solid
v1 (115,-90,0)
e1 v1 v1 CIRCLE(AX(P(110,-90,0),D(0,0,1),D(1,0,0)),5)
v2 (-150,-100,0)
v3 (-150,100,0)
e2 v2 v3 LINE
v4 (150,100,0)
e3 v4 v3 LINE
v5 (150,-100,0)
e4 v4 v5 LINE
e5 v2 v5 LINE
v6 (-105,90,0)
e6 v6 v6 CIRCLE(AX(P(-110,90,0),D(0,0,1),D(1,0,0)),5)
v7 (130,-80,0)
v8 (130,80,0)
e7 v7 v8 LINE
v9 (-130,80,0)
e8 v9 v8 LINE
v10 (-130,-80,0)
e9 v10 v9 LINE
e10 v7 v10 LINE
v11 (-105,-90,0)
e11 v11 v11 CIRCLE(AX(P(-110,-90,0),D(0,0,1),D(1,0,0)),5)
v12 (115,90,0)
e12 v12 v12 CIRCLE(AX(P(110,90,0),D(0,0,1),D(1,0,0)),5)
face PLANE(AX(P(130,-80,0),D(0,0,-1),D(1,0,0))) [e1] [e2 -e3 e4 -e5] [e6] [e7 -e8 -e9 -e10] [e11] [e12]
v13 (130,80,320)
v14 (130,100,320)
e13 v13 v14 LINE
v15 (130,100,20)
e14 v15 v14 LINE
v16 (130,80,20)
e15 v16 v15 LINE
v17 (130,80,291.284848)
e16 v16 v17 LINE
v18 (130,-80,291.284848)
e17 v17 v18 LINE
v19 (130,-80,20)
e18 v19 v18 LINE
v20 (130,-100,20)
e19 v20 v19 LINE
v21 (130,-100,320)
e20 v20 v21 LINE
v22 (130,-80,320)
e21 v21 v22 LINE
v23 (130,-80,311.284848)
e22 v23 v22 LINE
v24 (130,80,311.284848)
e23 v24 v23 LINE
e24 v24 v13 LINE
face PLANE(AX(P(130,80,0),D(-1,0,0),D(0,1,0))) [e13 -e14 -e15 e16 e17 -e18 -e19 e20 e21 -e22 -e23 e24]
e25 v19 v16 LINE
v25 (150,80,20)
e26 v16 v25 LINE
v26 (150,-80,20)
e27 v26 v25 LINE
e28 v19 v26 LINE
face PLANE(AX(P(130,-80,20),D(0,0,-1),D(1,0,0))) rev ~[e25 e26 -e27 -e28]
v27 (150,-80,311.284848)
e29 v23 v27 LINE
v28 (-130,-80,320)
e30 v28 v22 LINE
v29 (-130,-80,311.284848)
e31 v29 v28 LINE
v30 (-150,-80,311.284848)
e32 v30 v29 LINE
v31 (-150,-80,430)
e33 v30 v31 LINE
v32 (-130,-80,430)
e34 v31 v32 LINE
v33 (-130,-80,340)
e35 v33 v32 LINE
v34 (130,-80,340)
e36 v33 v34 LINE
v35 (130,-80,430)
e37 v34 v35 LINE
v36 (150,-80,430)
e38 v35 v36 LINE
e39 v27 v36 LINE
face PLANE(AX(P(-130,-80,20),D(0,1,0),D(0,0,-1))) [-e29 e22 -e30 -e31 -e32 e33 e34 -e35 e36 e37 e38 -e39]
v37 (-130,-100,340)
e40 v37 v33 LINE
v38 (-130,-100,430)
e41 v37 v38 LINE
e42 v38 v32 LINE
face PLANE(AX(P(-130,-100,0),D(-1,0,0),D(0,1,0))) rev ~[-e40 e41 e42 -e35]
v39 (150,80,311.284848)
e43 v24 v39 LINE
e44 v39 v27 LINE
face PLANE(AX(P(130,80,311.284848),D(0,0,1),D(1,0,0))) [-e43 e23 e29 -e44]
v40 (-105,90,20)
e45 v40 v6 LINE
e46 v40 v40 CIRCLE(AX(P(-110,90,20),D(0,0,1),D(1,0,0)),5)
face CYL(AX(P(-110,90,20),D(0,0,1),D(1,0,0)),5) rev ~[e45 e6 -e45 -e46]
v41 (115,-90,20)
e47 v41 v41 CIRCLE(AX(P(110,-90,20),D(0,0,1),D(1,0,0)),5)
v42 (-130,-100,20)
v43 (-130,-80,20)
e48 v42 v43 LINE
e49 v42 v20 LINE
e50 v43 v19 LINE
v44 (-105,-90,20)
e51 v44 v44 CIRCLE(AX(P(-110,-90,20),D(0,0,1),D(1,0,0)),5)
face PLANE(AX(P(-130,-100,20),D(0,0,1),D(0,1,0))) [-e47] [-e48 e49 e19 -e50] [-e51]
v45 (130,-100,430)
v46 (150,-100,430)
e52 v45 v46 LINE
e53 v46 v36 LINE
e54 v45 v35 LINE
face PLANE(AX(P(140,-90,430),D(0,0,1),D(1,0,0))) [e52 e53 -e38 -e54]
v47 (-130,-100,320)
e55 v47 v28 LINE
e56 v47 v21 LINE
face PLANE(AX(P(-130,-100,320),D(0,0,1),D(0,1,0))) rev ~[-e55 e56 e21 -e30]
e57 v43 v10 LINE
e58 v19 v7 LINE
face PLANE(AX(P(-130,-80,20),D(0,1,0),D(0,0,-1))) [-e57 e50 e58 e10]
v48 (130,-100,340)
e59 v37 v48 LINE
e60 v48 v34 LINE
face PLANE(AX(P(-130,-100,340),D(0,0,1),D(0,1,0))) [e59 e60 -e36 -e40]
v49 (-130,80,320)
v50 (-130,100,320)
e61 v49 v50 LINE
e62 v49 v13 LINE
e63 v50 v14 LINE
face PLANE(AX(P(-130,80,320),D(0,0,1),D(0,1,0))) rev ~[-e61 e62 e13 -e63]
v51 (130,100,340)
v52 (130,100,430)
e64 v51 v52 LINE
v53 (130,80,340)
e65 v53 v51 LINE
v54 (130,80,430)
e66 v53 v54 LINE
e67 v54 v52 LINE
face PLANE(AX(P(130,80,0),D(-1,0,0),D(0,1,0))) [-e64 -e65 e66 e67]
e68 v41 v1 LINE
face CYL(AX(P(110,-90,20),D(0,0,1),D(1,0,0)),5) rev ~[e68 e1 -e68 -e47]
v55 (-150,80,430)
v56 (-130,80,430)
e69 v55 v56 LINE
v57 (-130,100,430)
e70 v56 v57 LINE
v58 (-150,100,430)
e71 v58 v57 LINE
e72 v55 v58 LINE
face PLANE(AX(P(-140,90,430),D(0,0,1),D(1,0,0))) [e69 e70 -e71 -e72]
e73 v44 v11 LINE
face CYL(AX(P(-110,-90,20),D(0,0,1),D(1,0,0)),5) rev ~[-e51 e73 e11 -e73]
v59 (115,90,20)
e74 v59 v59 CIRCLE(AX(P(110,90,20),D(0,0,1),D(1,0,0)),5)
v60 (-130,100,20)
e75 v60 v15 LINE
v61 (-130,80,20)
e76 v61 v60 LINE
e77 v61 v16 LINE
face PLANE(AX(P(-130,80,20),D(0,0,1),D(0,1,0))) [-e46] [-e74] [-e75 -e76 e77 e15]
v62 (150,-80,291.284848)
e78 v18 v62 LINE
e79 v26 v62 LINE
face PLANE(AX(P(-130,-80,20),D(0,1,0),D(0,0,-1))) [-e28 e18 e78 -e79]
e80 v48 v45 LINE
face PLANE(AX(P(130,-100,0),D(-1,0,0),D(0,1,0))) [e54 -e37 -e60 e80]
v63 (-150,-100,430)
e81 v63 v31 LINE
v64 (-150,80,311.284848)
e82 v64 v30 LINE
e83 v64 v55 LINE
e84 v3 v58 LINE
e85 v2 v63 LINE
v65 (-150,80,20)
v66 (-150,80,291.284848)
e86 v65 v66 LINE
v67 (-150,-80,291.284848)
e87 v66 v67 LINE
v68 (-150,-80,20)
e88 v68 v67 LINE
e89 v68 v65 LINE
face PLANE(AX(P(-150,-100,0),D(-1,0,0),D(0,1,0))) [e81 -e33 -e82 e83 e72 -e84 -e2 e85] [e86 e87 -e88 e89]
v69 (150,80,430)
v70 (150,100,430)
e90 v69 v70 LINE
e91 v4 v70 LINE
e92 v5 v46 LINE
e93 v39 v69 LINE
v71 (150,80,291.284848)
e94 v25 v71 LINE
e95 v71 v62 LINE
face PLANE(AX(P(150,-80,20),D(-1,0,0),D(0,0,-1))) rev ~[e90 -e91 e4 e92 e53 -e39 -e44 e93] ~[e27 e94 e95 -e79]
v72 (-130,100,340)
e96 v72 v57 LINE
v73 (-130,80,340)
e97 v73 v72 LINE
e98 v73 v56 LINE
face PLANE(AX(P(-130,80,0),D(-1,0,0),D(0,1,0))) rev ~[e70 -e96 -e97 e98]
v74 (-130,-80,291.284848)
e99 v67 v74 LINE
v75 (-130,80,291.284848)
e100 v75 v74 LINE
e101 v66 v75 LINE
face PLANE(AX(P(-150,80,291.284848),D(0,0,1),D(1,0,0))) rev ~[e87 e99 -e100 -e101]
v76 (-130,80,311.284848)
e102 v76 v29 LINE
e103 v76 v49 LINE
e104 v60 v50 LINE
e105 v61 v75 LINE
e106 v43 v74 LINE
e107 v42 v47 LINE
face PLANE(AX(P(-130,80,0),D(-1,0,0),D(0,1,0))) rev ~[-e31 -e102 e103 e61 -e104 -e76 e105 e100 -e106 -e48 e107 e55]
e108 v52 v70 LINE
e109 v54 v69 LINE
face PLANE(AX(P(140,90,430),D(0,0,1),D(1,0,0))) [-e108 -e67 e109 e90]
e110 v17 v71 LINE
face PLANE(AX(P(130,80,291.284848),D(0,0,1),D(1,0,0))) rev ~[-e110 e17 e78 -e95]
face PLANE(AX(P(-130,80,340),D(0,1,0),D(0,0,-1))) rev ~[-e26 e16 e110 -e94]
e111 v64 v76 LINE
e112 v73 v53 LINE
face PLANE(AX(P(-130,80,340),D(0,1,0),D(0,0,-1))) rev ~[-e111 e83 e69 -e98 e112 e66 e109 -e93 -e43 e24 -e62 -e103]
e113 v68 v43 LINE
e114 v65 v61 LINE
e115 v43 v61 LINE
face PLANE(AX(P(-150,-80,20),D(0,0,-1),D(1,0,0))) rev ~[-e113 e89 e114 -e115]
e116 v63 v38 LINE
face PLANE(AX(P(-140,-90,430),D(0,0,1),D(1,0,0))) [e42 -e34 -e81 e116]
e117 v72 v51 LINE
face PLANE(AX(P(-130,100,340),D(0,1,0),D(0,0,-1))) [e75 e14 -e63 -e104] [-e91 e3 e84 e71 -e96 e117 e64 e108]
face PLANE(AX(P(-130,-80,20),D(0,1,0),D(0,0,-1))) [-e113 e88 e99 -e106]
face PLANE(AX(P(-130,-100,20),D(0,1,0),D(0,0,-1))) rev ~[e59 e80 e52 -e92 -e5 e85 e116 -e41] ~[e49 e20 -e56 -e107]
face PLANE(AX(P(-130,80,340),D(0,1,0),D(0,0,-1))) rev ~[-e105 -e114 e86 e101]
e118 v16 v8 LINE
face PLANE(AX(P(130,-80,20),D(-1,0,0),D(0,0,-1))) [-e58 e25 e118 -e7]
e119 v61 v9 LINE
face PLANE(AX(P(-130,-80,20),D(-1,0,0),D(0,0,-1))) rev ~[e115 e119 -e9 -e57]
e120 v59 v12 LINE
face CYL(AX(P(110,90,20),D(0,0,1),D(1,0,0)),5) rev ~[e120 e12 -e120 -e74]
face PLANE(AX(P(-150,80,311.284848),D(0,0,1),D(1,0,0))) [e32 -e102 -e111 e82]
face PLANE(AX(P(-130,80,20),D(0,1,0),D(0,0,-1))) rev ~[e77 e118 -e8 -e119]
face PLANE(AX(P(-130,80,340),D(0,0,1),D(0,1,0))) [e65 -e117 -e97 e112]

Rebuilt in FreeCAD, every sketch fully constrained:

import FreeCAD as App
import Part
import Sketcher

V = App.Vector
Q = App.Units.Quantity


def add_polygon(sketch, points):
    """Adds a closed chain of lines whose ends are joined by coincident constraints."""
    first, n = sketch.GeometryCount, len(points)
    for a, b in zip(points, points[1:] + points[:1]):
        sketch.addGeometry(Part.LineSegment(App.Vector(*a, 0), App.Vector(*b, 0)), False)
    for i in range(n):
        sketch.addConstraint(Sketcher.Constraint("Coincident", first + i, 2, first + (i + 1) % n, 1))

doc = App.newDocument("Part")
body = doc.addObject("PartDesign::Body", "Body")

sketch1 = body.newObject("Sketcher::SketchObject", "Sketch")
sketch1.AttachmentSupport = (doc.getObject("XY_Plane"), [""])
sketch1.MapMode = "FlatFace"
add_polygon(sketch1, [(-150, 100), (-150, 80), (-130, 80), (-130, 100)])
sketch1.addConstraint([
    Sketcher.Constraint("Vertical", 0),
    Sketcher.Constraint("Horizontal", 1),
    Sketcher.Constraint("Vertical", 2),
    Sketcher.Constraint("Horizontal", 3),
    Sketcher.Constraint("Equal", 3, 0),
    Sketcher.Constraint("DistanceX", 1, 1, 1, 2, Q("20 mm")),
    Sketcher.Constraint("DistanceX", 0, 2, -1, 1, Q("150 mm")),
    Sketcher.Constraint("DistanceY", -1, 1, 0, 2, Q("80 mm")),
])
pad1 = body.newObject("PartDesign::Pad", "Pad")
pad1.Profile = sketch1
pad1.Length = 430
body2 = doc.addObject("PartDesign::Body", "Body001")

sketch2 = body2.newObject("Sketcher::SketchObject", "Sketch001")
sketch2.AttachmentSupport = (doc.getObject("XY_Plane001"), [""])
sketch2.MapMode = "FlatFace"
add_polygon(sketch2, [(-150, -80), (-150, -100), (-130, -100), (-130, -80)])
sketch2.addConstraint([
    Sketcher.Constraint("Vertical", 0),
    Sketcher.Constraint("Horizontal", 1),
    Sketcher.Constraint("Vertical", 2),
    Sketcher.Constraint("Horizontal", 3),
    Sketcher.Constraint("Equal", 3, 0),
    Sketcher.Constraint("DistanceX", 1, 1, 1, 2, Q("20 mm")),
    Sketcher.Constraint("DistanceX", 0, 2, -1, 1, Q("150 mm")),
    Sketcher.Constraint("DistanceY", 0, 2, -1, 1, Q("100 mm")),
])
pad2 = body2.newObject("PartDesign::Pad", "Pad001")
pad2.Profile = sketch2
pad2.Length = 430
body3 = doc.addObject("PartDesign::Body", "Body002")

sketch3 = body3.newObject("Sketcher::SketchObject", "Sketch002")
sketch3.AttachmentSupport = (doc.getObject("XY_Plane002"), [""])
sketch3.MapMode = "FlatFace"
add_polygon(sketch3, [(130, -80), (130, -100), (150, -100), (150, -80)])
sketch3.addConstraint([
    Sketcher.Constraint("Vertical", 0),
    Sketcher.Constraint("Horizontal", 1),
    Sketcher.Constraint("Vertical", 2),
    Sketcher.Constraint("Horizontal", 3),
    Sketcher.Constraint("Equal", 3, 0),
    Sketcher.Constraint("DistanceX", 1, 1, 1, 2, Q("20 mm")),
    Sketcher.Constraint("DistanceX", -1, 1, 0, 2, Q("130 mm")),
    Sketcher.Constraint("DistanceY", 0, 2, -1, 1, Q("100 mm")),
])
pad3 = body3.newObject("PartDesign::Pad", "Pad002")
pad3.Profile = sketch3
pad3.Length = 430
body4 = doc.addObject("PartDesign::Body", "Body003")

sketch4 = body4.newObject("Sketcher::SketchObject", "Sketch003")
sketch4.AttachmentSupport = (doc.getObject("XY_Plane003"), [""])
sketch4.MapMode = "FlatFace"
add_polygon(sketch4, [(130, 100), (130, 80), (150, 80), (150, 100)])
sketch4.addConstraint([
    Sketcher.Constraint("Vertical", 0),
    Sketcher.Constraint("Horizontal", 1),
    Sketcher.Constraint("Vertical", 2),
    Sketcher.Constraint("Horizontal", 3),
    Sketcher.Constraint("Equal", 3, 0),
    Sketcher.Constraint("DistanceX", 1, 1, 1, 2, Q("20 mm")),
    Sketcher.Constraint("DistanceX", -1, 1, 0, 2, Q("130 mm")),
    Sketcher.Constraint("DistanceY", -1, 1, 0, 2, Q("80 mm")),
])
pad4 = body4.newObject("PartDesign::Pad", "Pad003")
pad4.Profile = sketch4
pad4.Length = 430
body.AllowCompound = True
doc.recompute()

boolean = body.newObject("PartDesign::Boolean", "Boolean")
boolean.Type = "Fuse"
boolean.addObjects([body2])
doc.recompute()

boolean2 = body.newObject("PartDesign::Boolean", "Boolean001")
boolean2.Type = "Fuse"
boolean2.addObjects([body3])
doc.recompute()

boolean3 = body.newObject("PartDesign::Boolean", "Boolean002")
boolean3.Type = "Fuse"
boolean3.addObjects([body4])

sketch5 = body.newObject("Sketcher::SketchObject", "Sketch004")
sketch5.AttachmentSupport = (doc.getObject("YZ_Plane"), [""])
sketch5.MapMode = "FlatFace"
sketch5.AttachmentOffset = App.Placement(V(0, 0, -130), App.Rotation())
add_polygon(sketch5, [(100, 20), (80, 20), (80, 0), (100, 0)])
add_polygon(sketch5, [(-80, 20), (-100, 20), (-100, 0), (-80, 0)])
sketch5.addConstraint([
    Sketcher.Constraint("Horizontal", 0),
    Sketcher.Constraint("Vertical", 1),
    Sketcher.Constraint("Horizontal", 2),
    Sketcher.Constraint("Vertical", 3),
    Sketcher.Constraint("Horizontal", 4),
    Sketcher.Constraint("Vertical", 5),
    Sketcher.Constraint("Horizontal", 6),
    Sketcher.Constraint("Vertical", 7),
    Sketcher.Constraint("Symmetric", 2, 2, 5, 2, -1, 1),
    Sketcher.Constraint("Symmetric", 1, 2, 6, 2, -2),
    Sketcher.Constraint("Horizontal", 3, 2, 4, 2),
    Sketcher.Constraint("Equal", 6, 1),
    Sketcher.Constraint("DistanceX", 0, 2, 0, 1, Q("20 mm")),
    Sketcher.Constraint("DistanceX", -1, 1, 0, 2, Q("80 mm")),
])
pad5 = body.newObject("PartDesign::Pad", "Pad004")
pad5.Profile = sketch5
pad5.Length = 260

sketch6 = body.newObject("Sketcher::SketchObject", "Sketch005")
sketch6.AttachmentSupport = (doc.getObject("XZ_Plane"), [""])
sketch6.MapMode = "FlatFace"
sketch6.AttachmentOffset = App.Placement(V(0, 0, 80), App.Rotation())
add_polygon(sketch6, [(130, 0), (130, 20), (150, 20), (150, 0)])
add_polygon(sketch6, [(-150, 0), (-150, 20), (-130, 20), (-130, 0)])
sketch6.addConstraint([
    Sketcher.Constraint("Vertical", 0),
    Sketcher.Constraint("Horizontal", 1),
    Sketcher.Constraint("Vertical", 2),
    Sketcher.Constraint("Horizontal", 3),
    Sketcher.Constraint("Vertical", 4),
    Sketcher.Constraint("Horizontal", 5),
    Sketcher.Constraint("Vertical", 6),
    Sketcher.Constraint("Horizontal", 7),
    Sketcher.Constraint("Symmetric", 3, 2, 6, 2, -1, 1),
    Sketcher.Constraint("Symmetric", 1, 2, 4, 2, -2),
    Sketcher.Constraint("PointOnObject", 2, 2, -1),
    Sketcher.Constraint("Equal", 7, 0),
    Sketcher.Constraint("DistanceX", 1, 1, 1, 2, Q("20 mm")),
    Sketcher.Constraint("DistanceX", -1, 1, 0, 2, Q("130 mm")),
])
pad6 = body.newObject("PartDesign::Pad", "Pad005")
pad6.Profile = sketch6
pad6.Length = 160
pad6.Reversed = True

sketch7 = body.newObject("Sketcher::SketchObject", "Sketch006")
sketch7.AttachmentSupport = (doc.getObject("YZ_Plane"), [""])
sketch7.MapMode = "FlatFace"
sketch7.AttachmentOffset = App.Placement(V(0, 0, -130), App.Rotation())
add_polygon(sketch7, [(100, 340), (80, 340), (80, 320), (100, 320)])
add_polygon(sketch7, [(-80, 340), (-100, 340), (-100, 320), (-80, 320)])
sketch7.addConstraint([
    Sketcher.Constraint("Horizontal", 0),
    Sketcher.Constraint("Vertical", 1),
    Sketcher.Constraint("Horizontal", 2),
    Sketcher.Constraint("Vertical", 3),
    Sketcher.Constraint("Horizontal", 4),
    Sketcher.Constraint("Vertical", 5),
    Sketcher.Constraint("Horizontal", 6),
    Sketcher.Constraint("Vertical", 7),
    Sketcher.Constraint("Symmetric", 3, 2, 4, 2, -2),
    Sketcher.Constraint("Symmetric", 1, 2, 6, 2, -2),
    Sketcher.Constraint("Equal", 6, 1),
    Sketcher.Constraint("DistanceX", 0, 2, 0, 1, Q("20 mm")),
    Sketcher.Constraint("DistanceX", -1, 1, 0, 2, Q("80 mm")),
    Sketcher.Constraint("DistanceY", -1, 1, 0, 2, Q("340 mm")),
])
pad7 = body.newObject("PartDesign::Pad", "Pad006")
pad7.Profile = sketch7
pad7.Length = 261

sketch8 = body.newObject("Sketcher::SketchObject", "Sketch007")
sketch8.AttachmentSupport = (doc.getObject("XZ_Plane"), [""])
sketch8.MapMode = "FlatFace"
sketch8.AttachmentOffset = App.Placement(V(0, 0, -80), App.Rotation())
add_polygon(sketch8, [(130, 311.284848), (130, 291.284848), (150, 291.284848), (150, 311.284848)])
add_polygon(sketch8, [(-150, 311.284848), (-150, 291.284848), (-130, 291.284848), (-130, 311.284848)])
sketch8.addConstraint([
    Sketcher.Constraint("Vertical", 0),
    Sketcher.Constraint("Horizontal", 1),
    Sketcher.Constraint("Vertical", 2),
    Sketcher.Constraint("Horizontal", 3),
    Sketcher.Constraint("Vertical", 4),
    Sketcher.Constraint("Horizontal", 5),
    Sketcher.Constraint("Vertical", 6),
    Sketcher.Constraint("Horizontal", 7),
    Sketcher.Constraint("Symmetric", 1, 2, 4, 2, -2),
    Sketcher.Constraint("Symmetric", 3, 2, 6, 2, -2),
    Sketcher.Constraint("Equal", 7, 0),
    Sketcher.Constraint("DistanceX", 1, 1, 1, 2, Q("20 mm")),
    Sketcher.Constraint("DistanceX", -1, 1, 0, 2, Q("130 mm")),
    Sketcher.Constraint("DistanceY", -1, 1, 0, 2, Q("291.284848 mm")),
])
pad8 = body.newObject("PartDesign::Pad", "Pad007")
pad8.Profile = sketch8
pad8.Length = 160

sketch9 = body.newObject("Sketcher::SketchObject", "Sketch008")
sketch9.AttachmentSupport = (doc.getObject("XY_Plane"), [""])
sketch9.MapMode = "FlatFace"
sketch9.AttachmentOffset = App.Placement(V(0, 0, 20), App.Rotation())
sketch9.addGeometry([
    Part.Circle(V(110, 90, 0), V(0, 0, 1), 5),
    Part.Circle(V(110, -90, 0), V(0, 0, 1), 5),
    Part.Circle(V(-110, -90, 0), V(0, 0, 1), 5),
    Part.Circle(V(-110, 90, 0), V(0, 0, 1), 5),
], False)
sketch9.addConstraint([
    Sketcher.Constraint("Equal", 0, 1),
    Sketcher.Constraint("Equal", 1, 2),
    Sketcher.Constraint("Equal", 2, 3),
    Sketcher.Constraint("Symmetric", 0, 3, 2, 3, -1, 1),
    Sketcher.Constraint("Symmetric", 1, 3, 3, 3, -1, 1),
    Sketcher.Constraint("Symmetric", 1, 3, 2, 3, -2),
    Sketcher.Constraint("Diameter", 0, Q("10 mm")),
    Sketcher.Constraint("DistanceX", -1, 1, 0, 3, Q("110 mm")),
    Sketcher.Constraint("DistanceY", -1, 1, 0, 3, Q("90 mm")),
])
pocket1 = body.newObject("PartDesign::Pocket", "Pocket")
pocket1.Profile = sketch9
pocket1.Length = 41

doc.recompute()
